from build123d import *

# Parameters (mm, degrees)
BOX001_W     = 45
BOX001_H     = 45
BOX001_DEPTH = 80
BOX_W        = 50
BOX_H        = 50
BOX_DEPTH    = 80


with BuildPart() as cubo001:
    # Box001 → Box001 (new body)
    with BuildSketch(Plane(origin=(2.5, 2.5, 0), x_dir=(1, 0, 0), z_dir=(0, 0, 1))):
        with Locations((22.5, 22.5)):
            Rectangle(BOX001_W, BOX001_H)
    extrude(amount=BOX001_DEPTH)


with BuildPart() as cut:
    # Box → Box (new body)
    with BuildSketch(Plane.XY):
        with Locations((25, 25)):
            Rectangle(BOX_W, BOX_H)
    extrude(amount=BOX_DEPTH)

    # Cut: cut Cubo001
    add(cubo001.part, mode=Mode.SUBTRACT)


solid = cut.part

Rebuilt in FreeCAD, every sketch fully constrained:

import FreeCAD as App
import Part
import Sketcher

V = App.Vector
Q = App.Units.Quantity


def add_polygon(sketch, points):
    """Adds a closed chain of lines whose ends are joined by coincident constraints."""
    first, n = sketch.GeometryCount, len(points)
    for a, b in zip(points, points[1:] + points[:1]):
        sketch.addGeometry(Part.LineSegment(App.Vector(*a, 0), App.Vector(*b, 0)), False)
    for i in range(n):
        sketch.addConstraint(Sketcher.Constraint("Coincident", first + i, 2, first + (i + 1) % n, 1))

doc = App.newDocument("Part")
params = doc.addObject("Spreadsheet::Sheet", "Params")
for row, (alias, value) in enumerate([
    ("sketch1_width", "45 mm"),
    ("pad1_length", "80 mm"),
    ("sketch2_width", "50 mm"),
    ("pad2_length", "80 mm"),
], start=1):
    params.set(f"A{row}", alias)
    params.set(f"B{row}", "=" + value)
    params.setAlias(f"B{row}", alias)

body = doc.addObject("PartDesign::Body", "Body")

# Sketch on XY plane
sketch1 = body.newObject("Sketcher::SketchObject", "Sketch")
sketch1.AttachmentSupport = (doc.getObject("XY_Plane"), [""])
sketch1.MapMode = "FlatFace"
add_polygon(sketch1, [(2.5, 47.5), (2.5, 2.5), (47.5, 2.5), (47.5, 47.5)])  # lines 0-3
sketch1.addConstraint(Sketcher.Constraint("Vertical", 0))
sketch1.addConstraint(Sketcher.Constraint("Horizontal", 1))
sketch1.addConstraint(Sketcher.Constraint("Vertical", 2))
sketch1.addConstraint(Sketcher.Constraint("Horizontal", 3))
sketch1.addConstraint(Sketcher.Constraint("Equal", 3, 0))
sketch1.addConstraint(Sketcher.Constraint("DistanceX", 1, 1, 1, 2, Q("45 mm")))
sketch1.addConstraint(Sketcher.Constraint("DistanceX", -1, 1, 0, 2, Q("2.5 mm")))
sketch1.addConstraint(Sketcher.Constraint("DistanceY", -1, 1, 0, 2, Q("2.5 mm")))
sketch1.setExpression("Constraints[9]", "Params.sketch1_width")
pad1 = body.newObject("PartDesign::Pad", "Pad")
pad1.Profile = sketch1
pad1.setExpression("Length", "Params.pad1_length")
body2 = doc.addObject("PartDesign::Body", "Body001")

# Sketch on XY plane
sketch2 = body2.newObject("Sketcher::SketchObject", "Sketch001")
sketch2.AttachmentSupport = (doc.getObject("XY_Plane001"), [""])
sketch2.MapMode = "FlatFace"
add_polygon(sketch2, [(0, 50), (0, 0), (50, 0), (50, 50)])  # lines 0-3
sketch2.addConstraint(Sketcher.Constraint("Vertical", 0))
sketch2.addConstraint(Sketcher.Constraint("Horizontal", 1))
sketch2.addConstraint(Sketcher.Constraint("Vertical", 2))
sketch2.addConstraint(Sketcher.Constraint("Horizontal", 3))
sketch2.addConstraint(Sketcher.Constraint("Coincident", 0, 2, -1, 1))
sketch2.addConstraint(Sketcher.Constraint("Equal", 3, 0))
sketch2.addConstraint(Sketcher.Constraint("DistanceX", 1, 1, 1, 2, Q("50 mm")))
sketch2.setExpression("Constraints[10]", "Params.sketch2_width")
pad2 = body2.newObject("PartDesign::Pad", "Pad001")
pad2.Profile = sketch2
pad2.setExpression("Length", "Params.pad2_length")
doc.recompute()

boolean = body2.newObject("PartDesign::Boolean", "Boolean")
boolean.Type = "Cut"
boolean.addObjects([body])

doc.recompute()
